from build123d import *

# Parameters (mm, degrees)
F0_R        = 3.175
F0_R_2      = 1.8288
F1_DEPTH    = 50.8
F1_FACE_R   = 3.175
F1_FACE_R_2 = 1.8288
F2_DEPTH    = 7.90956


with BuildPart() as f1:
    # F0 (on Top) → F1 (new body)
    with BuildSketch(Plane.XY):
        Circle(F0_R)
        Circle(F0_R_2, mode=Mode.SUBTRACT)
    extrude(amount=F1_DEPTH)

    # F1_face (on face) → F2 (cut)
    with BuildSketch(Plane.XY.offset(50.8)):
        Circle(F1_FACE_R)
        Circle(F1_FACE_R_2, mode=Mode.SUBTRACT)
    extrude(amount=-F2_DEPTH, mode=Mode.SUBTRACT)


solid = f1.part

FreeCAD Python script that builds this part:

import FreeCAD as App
import Part
import Sketcher

V = App.Vector
Q = App.Units.Quantity

doc = App.newDocument("Part")
body = doc.addObject("PartDesign::Body", "Body")

# Sketch on XY plane
sketch1 = body.newObject("Sketcher::SketchObject", "Sketch")
sketch1.AttachmentSupport = (doc.getObject("XY_Plane"), [""])
sketch1.MapMode = "FlatFace"
sketch1.addGeometry([
    Part.Circle(V(0, 0, 0), V(0, 0, 1), 3.2),
    Part.Circle(V(0, 0, 0), V(0, 0, 1), 1.8),
], False)
sketch1.addConstraint([
    Sketcher.Constraint("Coincident", 0, 3, -1, 1),
    Sketcher.Constraint("Coincident", 1, 3, -1, 1),
    Sketcher.Constraint("Diameter", 0, Q("0.25 in")),
    Sketcher.Constraint("Diameter", 1, Q("0.144 in")),
])
pad1 = body.newObject("PartDesign::Pad", "Pad")
pad1.Profile = sketch1
pad1.Length = Q("2 in")

# Sketch on XY plane
sketch2 = body.newObject("Sketcher::SketchObject", "Sketch001")
sketch2.AttachmentSupport = (doc.getObject("XY_Plane"), [""])
sketch2.MapMode = "FlatFace"
sketch2.AttachmentOffset = App.Placement(V(0, 0, 2 * 25.4), App.Rotation())
sketch2.addGeometry([
    Part.Circle(V(0, 0, 0), V(0, 0, 1), 3.2),
    Part.Circle(V(0, 0, 0), V(0, 0, 1), 1.8),
], False)
sketch2.addConstraint([
    Sketcher.Constraint("Coincident", 0, 3, -1, 1),
    Sketcher.Constraint("Coincident", 1, 3, -1, 1),
    Sketcher.Constraint("Diameter", 0, Q("0.25 in")),
    Sketcher.Constraint("Diameter", 1, Q("0.144 in")),
])
pocket1 = body.newObject("PartDesign::Pocket", "Pocket")
pocket1.Profile = sketch2
pocket1.Length = Q("0.3114 in")

doc.recompute()
